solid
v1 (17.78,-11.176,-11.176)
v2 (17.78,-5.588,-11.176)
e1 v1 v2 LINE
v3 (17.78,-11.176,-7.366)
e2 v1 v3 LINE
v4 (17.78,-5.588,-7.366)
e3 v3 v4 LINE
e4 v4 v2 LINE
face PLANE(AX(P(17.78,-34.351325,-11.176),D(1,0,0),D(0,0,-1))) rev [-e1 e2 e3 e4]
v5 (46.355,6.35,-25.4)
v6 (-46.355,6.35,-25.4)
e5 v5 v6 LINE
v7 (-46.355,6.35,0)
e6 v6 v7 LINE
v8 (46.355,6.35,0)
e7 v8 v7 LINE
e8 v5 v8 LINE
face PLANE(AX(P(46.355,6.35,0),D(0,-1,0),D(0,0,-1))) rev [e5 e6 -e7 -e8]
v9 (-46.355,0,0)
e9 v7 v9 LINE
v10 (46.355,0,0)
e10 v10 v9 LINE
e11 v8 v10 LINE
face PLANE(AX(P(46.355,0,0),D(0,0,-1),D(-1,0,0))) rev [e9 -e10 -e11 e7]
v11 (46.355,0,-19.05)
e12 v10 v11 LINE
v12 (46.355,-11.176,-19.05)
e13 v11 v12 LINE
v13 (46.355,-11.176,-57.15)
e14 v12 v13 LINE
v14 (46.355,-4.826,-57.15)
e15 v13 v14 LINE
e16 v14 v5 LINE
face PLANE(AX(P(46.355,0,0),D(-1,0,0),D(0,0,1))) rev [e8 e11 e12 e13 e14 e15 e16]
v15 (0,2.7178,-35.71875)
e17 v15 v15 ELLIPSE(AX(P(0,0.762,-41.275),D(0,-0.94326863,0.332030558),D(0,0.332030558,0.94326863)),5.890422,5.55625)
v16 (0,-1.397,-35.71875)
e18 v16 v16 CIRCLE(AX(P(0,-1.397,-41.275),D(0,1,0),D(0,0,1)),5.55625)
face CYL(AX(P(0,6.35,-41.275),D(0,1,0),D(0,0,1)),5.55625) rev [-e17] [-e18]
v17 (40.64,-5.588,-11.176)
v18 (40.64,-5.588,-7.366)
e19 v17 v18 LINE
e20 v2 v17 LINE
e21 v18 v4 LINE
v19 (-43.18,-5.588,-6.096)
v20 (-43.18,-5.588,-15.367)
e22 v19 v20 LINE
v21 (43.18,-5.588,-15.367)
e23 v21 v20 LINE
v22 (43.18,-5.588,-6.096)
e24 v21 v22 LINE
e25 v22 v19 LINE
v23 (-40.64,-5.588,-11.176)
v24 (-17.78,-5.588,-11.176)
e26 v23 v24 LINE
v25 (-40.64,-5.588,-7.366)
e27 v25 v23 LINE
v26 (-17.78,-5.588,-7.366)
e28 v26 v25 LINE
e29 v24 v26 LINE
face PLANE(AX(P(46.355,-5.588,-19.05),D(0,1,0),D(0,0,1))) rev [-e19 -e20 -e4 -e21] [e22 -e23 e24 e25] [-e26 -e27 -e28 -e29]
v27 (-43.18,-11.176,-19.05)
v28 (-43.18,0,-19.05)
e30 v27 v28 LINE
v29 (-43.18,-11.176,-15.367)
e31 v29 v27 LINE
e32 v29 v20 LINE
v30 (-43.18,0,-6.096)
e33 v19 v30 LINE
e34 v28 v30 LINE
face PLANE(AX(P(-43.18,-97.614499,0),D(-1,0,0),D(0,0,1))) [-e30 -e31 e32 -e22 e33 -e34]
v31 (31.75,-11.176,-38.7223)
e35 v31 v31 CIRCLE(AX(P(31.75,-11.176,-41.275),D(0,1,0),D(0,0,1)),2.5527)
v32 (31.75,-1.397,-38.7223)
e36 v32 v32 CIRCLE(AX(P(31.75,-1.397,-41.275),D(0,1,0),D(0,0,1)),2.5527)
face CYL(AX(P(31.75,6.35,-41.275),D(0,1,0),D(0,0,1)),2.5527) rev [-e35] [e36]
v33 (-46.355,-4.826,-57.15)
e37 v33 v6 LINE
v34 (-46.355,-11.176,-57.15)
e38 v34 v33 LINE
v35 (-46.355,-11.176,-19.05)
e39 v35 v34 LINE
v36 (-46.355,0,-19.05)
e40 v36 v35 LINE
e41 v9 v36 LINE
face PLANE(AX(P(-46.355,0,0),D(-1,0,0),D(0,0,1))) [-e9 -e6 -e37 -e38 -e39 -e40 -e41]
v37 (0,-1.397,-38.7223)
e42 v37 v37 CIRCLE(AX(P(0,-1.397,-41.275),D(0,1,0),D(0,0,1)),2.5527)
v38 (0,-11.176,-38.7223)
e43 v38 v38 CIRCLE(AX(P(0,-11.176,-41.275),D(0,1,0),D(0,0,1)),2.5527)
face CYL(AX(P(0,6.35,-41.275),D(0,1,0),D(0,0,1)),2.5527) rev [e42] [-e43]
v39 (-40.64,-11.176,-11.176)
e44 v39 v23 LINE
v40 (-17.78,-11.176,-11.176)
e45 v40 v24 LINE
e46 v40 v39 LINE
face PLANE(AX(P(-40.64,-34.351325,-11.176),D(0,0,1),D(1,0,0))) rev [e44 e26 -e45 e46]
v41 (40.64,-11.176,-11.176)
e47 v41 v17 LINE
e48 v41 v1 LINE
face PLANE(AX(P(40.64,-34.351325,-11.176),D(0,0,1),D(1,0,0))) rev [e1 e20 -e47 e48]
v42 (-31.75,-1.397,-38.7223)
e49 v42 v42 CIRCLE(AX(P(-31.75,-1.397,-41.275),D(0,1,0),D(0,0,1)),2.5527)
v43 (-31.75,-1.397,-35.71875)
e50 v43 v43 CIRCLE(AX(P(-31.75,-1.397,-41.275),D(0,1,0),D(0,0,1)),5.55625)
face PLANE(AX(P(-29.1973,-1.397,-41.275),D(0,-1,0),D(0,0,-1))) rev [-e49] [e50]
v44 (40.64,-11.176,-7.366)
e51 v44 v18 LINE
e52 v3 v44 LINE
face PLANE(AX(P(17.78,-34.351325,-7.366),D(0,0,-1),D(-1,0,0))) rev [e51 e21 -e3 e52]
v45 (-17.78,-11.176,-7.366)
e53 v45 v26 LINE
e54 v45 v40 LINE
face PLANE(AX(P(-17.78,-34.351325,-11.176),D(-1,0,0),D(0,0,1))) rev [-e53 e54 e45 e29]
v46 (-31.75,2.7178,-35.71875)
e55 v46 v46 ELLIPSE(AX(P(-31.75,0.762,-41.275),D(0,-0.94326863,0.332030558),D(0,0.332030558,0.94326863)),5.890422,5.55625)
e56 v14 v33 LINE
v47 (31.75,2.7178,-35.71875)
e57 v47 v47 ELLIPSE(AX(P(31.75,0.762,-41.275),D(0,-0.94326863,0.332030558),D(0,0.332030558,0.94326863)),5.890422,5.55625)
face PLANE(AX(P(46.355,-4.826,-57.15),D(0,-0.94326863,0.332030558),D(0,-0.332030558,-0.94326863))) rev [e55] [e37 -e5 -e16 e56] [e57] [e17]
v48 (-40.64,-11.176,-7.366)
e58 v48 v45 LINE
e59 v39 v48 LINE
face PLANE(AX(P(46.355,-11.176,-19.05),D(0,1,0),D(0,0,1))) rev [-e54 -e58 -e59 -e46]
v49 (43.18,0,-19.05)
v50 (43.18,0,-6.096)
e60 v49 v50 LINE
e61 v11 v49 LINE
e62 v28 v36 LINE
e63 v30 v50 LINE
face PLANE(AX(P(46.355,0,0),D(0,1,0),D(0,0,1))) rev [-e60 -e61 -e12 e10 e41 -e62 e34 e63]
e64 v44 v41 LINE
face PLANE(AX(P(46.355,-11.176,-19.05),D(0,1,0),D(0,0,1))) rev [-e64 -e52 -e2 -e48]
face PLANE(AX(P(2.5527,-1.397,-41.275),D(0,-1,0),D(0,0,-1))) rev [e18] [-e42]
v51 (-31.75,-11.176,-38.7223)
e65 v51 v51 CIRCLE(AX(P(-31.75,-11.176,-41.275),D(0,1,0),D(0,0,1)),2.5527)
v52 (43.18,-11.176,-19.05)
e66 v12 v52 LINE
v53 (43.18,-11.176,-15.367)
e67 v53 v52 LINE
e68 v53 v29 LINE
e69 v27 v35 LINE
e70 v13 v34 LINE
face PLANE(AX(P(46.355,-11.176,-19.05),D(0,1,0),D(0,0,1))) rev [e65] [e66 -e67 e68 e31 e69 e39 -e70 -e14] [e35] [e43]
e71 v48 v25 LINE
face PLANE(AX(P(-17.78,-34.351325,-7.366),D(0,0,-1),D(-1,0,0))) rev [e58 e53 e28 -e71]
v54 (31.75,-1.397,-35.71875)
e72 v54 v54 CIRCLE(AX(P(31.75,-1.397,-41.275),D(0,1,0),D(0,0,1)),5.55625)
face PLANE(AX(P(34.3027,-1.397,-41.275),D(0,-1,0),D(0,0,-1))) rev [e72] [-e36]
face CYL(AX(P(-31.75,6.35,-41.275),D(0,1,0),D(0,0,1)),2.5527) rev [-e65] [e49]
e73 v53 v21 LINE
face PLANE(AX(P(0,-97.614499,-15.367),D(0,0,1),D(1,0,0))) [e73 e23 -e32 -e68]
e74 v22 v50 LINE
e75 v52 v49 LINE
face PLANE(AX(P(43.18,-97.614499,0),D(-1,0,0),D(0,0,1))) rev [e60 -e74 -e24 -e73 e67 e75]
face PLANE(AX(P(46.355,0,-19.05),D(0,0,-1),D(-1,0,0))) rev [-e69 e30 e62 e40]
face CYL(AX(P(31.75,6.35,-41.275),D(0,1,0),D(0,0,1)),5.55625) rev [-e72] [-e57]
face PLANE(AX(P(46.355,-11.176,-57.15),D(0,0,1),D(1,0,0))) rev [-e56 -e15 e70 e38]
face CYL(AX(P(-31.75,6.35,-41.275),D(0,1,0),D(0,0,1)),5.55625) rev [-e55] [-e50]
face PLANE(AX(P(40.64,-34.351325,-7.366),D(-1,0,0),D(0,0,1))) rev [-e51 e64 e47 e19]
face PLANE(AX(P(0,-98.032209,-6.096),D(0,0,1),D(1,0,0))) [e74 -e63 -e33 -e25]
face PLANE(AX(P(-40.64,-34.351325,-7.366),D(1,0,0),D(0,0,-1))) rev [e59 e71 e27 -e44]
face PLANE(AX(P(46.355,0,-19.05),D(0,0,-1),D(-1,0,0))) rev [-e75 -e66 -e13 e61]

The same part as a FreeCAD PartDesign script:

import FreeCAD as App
import Part
import Sketcher
from FreeCAD import Vector
Q = App.Units.Quantity


def add_polygon(sketch, points):
    """Adds a closed chain of lines whose ends are joined by coincident constraints."""
    first, n = sketch.GeometryCount, len(points)
    for a, b in zip(points, points[1:] + points[:1]):
        sketch.addGeometry(Part.LineSegment(App.Vector(*a, 0), App.Vector(*b, 0)), False)
    for i in range(n):
        sketch.addConstraint(Sketcher.Constraint("Coincident", first + i, 2, first + (i + 1) % n, 1))

doc = App.newDocument("Part")
body = doc.addObject("PartDesign::Body", "Body")

sketch1 = body.newObject("Sketcher::SketchObject", "Sketch")
sketch1.AttachmentSupport = (doc.getObject("YZ_Plane"), [""])
sketch1.MapMode = "FlatFace"
add_polygon(sketch1, [(0, -19.05), (-11.176, -19.05), (-11.176, -57.15), (-4.826, -57.15), (6.35, -25.4), (6.35, 0), (0, 0)])
sketch1.addConstraint([
    Sketcher.Constraint("Horizontal", 0),
    Sketcher.Constraint("Vertical", 1),
    Sketcher.Constraint("Horizontal", 2),
    Sketcher.Constraint("Vertical", 4),
    Sketcher.Constraint("Horizontal", 5),
    Sketcher.Constraint("Vertical", 6),
    Sketcher.Constraint("Coincident", 5, 2, -1, 1),
    Sketcher.Constraint("Equal", 2, 5),
    Sketcher.Constraint("DistanceY", 4, 1, 4, 2, Q("1 in")),
    Sketcher.Constraint("DistanceY", 1, 2, 1, 1, Q("1.5 in")),
    Sketcher.Constraint("DistanceX", 0, 2, 0, 1, Q("0.44 in")),
    Sketcher.Constraint("DistanceX", 2, 1, 2, 2, Q("0.25 in")),
    Sketcher.Constraint("DistanceY", 6, 2, 6, 1, Q("0.75 in")),
])
pad1 = body.newObject("PartDesign::Pad", "Pad")
pad1.Profile = sketch1
pad1.Length = Q("3.65 in")
pad1.Midplane = True

sketch2 = body.newObject("Sketcher::SketchObject", "Sketch001")
sketch2.AttachmentSupport = (doc.getObject("XZ_Plane"), [""])
sketch2.MapMode = "FlatFace"
add_polygon(sketch2, [(-43.18, -15.367), (-43.18, -19.05), (43.18, -19.05), (43.18, -15.367)])
sketch2.addConstraint([
    Sketcher.Constraint("Vertical", 0),
    Sketcher.Constraint("Horizontal", 1),
    Sketcher.Constraint("Vertical", 2),
    Sketcher.Constraint("Horizontal", 3),
    Sketcher.Constraint("DistanceX", 1, 1, 1, 2, Q("3.4 in")),
    Sketcher.Constraint("DistanceX", 0, 2, -1, 1, Q("1.7 in")),
    Sketcher.Constraint("DistanceY", 0, 2, 0, 1, Q("0.145 in")),
    Sketcher.Constraint("DistanceY", 0, 2, -1, 1, Q("0.75 in")),
])
pad2 = body.newObject("PartDesign::Pad", "Pad001")
pad2.Profile = sketch2
pad2.Length = Q("0.44 in")

sketch3 = body.newObject("Sketcher::SketchObject", "Sketch002")
sketch3.AttachmentSupport = (doc.getObject("XZ_Plane"), [""])
sketch3.MapMode = "FlatFace"
add_polygon(sketch3, [(-43.18, -6.096), (-43.18, -15.367), (43.18, -15.367), (43.18, -6.096)])
sketch3.addConstraint([
    Sketcher.Constraint("Vertical", 0),
    Sketcher.Constraint("Horizontal", 1),
    Sketcher.Constraint("Vertical", 2),
    Sketcher.Constraint("Horizontal", 3),
    Sketcher.Constraint("DistanceX", 1, 1, 1, 2, Q("3.4 in")),
    Sketcher.Constraint("DistanceX", 0, 2, -1, 1, Q("1.7 in")),
    Sketcher.Constraint("DistanceY", 0, 2, 0, 1, Q("0.365 in")),
    Sketcher.Constraint("DistanceY", 2, 2, -1, 1, Q("0.24 in")),
])
pad3 = body.newObject("PartDesign::Pad", "Pad002")
pad3.Profile = sketch3
pad3.Length = Q("0.22 in")

sketch4 = body.newObject("Sketcher::SketchObject", "Sketch003")
sketch4.AttachmentSupport = (doc.getObject("XZ_Plane"), [""])
sketch4.MapMode = "FlatFace"
sketch4.AttachmentOffset = App.Placement(Vector(0, 0, 0.22 * 25.4), App.Rotation())
add_polygon(sketch4, [(-40.64, -7.366), (-40.64, -11.176), (-17.78, -11.176), (-17.78, -7.366)])
add_polygon(sketch4, [(17.78, -7.366), (17.78, -11.176), (40.64, -11.176), (40.64, -7.366)])
sketch4.addConstraint([
    Sketcher.Constraint("Vertical", 0),
    Sketcher.Constraint("Horizontal", 1),
    Sketcher.Constraint("Vertical", 2),
    Sketcher.Constraint("Horizontal", 3),
    Sketcher.Constraint("Vertical", 4),
    Sketcher.Constraint("Horizontal", 5),
    Sketcher.Constraint("Vertical", 6),
    Sketcher.Constraint("Horizontal", 7),
    Sketcher.Constraint("Symmetric", 1, 2, 4, 2, -2),
    Sketcher.Constraint("Symmetric", 3, 2, 6, 2, -2),
    Sketcher.Constraint("DistanceX", 1, 1, 1, 2, Q("0.9 in")),
    Sketcher.Constraint("DistanceY", 0, 2, 0, 1, Q("0.15 in")),
    Sketcher.Constraint("DistanceX", 0, 2, -1, 1, Q("1.6 in")),
    Sketcher.Constraint("DistanceY", 0, 2, -1, 1, Q("0.44 in")),
])
pad4 = body.newObject("PartDesign::Pad", "Pad003")
pad4.Profile = sketch4
pad4.Length = Q("0.22 in")

sketch5 = body.newObject("Sketcher::SketchObject", "Sketch004")
sketch5.AttachmentSupport = (doc.getObject("XZ_Plane"), [""])
sketch5.MapMode = "FlatFace"
sketch5.AttachmentOffset = App.Placement(Vector(0, 0, -0.25 * 25.4), App.Rotation())
sketch5.addGeometry([
    Part.Circle(Vector(31.75, -41.275, 0), Vector(0, 0, 1), 2.5527),
    Part.Circle(Vector(0, -41.275, 0), Vector(0, 0, 1), 2.5527),
    Part.Circle(Vector(-31.75, -41.275, 0), Vector(0, 0, 1), 2.5527),
], False)
sketch5.addConstraint([
    Sketcher.Constraint("Equal", 0, 1),
    Sketcher.Constraint("Equal", 1, 2),
    Sketcher.Constraint("Symmetric", 0, 3, 2, 3, -2),
    Sketcher.Constraint("PointOnObject", 1, 3, -2),
    Sketcher.Constraint("Horizontal", 0, 3, 1, 3),
    Sketcher.Constraint("Diameter", 0, Q("0.201 in")),
    Sketcher.Constraint("DistanceX", 2, 3, 0, 3, Q("2.5 in")),
    Sketcher.Constraint("DistanceY", 0, 3, -1, 1, Q("1.625 in")),
])
doc.recompute()
hole = body.newObject("PartDesign::Hole", "Hole")
hole.Profile = sketch5
hole.ThreadType = "None"
hole.Diameter = Q("0.201 in")
hole.DepthType = "ThroughAll"
hole.HoleCutType = "Counterbore"
hole.HoleCutDiameter = Q("0.4375 in")
hole.HoleCutDepth = Q("0.305 in")
hole.Reversed = True

doc.recompute()
